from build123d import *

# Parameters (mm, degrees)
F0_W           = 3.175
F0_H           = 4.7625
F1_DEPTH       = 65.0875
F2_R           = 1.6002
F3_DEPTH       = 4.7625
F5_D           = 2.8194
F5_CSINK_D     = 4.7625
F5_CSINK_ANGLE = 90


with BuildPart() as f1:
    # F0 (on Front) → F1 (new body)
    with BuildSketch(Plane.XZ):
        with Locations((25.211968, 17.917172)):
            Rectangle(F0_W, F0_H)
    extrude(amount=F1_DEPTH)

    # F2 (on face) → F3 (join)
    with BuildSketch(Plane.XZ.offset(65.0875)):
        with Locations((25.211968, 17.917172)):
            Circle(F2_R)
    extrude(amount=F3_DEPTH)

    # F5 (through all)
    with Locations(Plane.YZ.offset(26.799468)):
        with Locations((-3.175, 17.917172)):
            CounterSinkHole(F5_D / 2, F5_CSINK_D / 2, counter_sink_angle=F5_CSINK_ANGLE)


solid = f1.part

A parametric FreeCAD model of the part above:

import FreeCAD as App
import Part
import Sketcher

V = App.Vector
Q = App.Units.Quantity

doc = App.newDocument("Part")
body = doc.addObject("PartDesign::Body", "Body")

sketch1 = body.newObject("Sketcher::SketchObject", "Sketch")
sketch1.AttachmentSupport = (doc.getObject("XZ_Plane"), [""])
sketch1.MapMode = "FlatFace"
sketch1.addGeometry([
    Part.LineSegment(V(23.6, 20.3, 0), V(23.6, 15.5, 0)),
    Part.LineSegment(V(23.6, 15.5, 0), V(26.8, 15.5, 0)),
    Part.LineSegment(V(26.8, 15.5, 0), V(26.8, 20.3, 0)),
    Part.LineSegment(V(26.8, 20.3, 0), V(23.6, 20.3, 0)),
], False)
sketch1.addConstraint([
    Sketcher.Constraint("Coincident", 0, 2, 1, 1),
    Sketcher.Constraint("Coincident", 1, 2, 2, 1),
    Sketcher.Constraint("Coincident", 2, 2, 3, 1),
    Sketcher.Constraint("Coincident", 3, 2, 0, 1),
    Sketcher.Constraint("Vertical", 0),
    Sketcher.Constraint("Horizontal", 1),
    Sketcher.Constraint("Vertical", 2),
    Sketcher.Constraint("Horizontal", 3),
    Sketcher.Constraint("DistanceX", 1, 1, 1, 2, Q("0.125 in")),
    Sketcher.Constraint("DistanceY", 0, 2, 0, 1, Q("0.1875 in")),
    Sketcher.Constraint("DistanceX", -1, 1, 0, 2, 23.624468),
    Sketcher.Constraint("DistanceY", -1, 1, 0, 2, 15.535922),
])
pad1 = body.newObject("PartDesign::Pad", "Pad")
pad1.Profile = sketch1
pad1.Length = Q("2.5625 in")

sketch2 = body.newObject("Sketcher::SketchObject", "Sketch001")
sketch2.AttachmentSupport = (doc.getObject("XZ_Plane"), [""])
sketch2.MapMode = "FlatFace"
sketch2.AttachmentOffset = App.Placement(V(0, 0, 2.5625 * 25.4), App.Rotation())
sketch2.addGeometry(Part.Circle(V(25.2, 17.9, 0), V(0, 0, 1), 1.6), False)
sketch2.addConstraint([
    Sketcher.Constraint("Diameter", 0, Q("0.126 in")),
    Sketcher.Constraint("DistanceX", -1, 1, 0, 3, 25.211968),
    Sketcher.Constraint("DistanceY", -1, 1, 0, 3, 17.917172),
])
pad2 = body.newObject("PartDesign::Pad", "Pad001")
pad2.Profile = sketch2
pad2.Length = Q("0.1875 in")

sketch3 = body.newObject("Sketcher::SketchObject", "Sketch002")
sketch3.AttachmentSupport = (doc.getObject("YZ_Plane"), [""])
sketch3.MapMode = "FlatFace"
sketch3.AttachmentOffset = App.Placement(V(0, 0, 26.799468), App.Rotation())
sketch3.addGeometry(Part.Circle(V(-3.2, 17.9, 0), V(0, 0, 1), 1.4), False)
sketch3.addConstraint([
    Sketcher.Constraint("Diameter", 0, Q("0.111 in")),
    Sketcher.Constraint("DistanceX", 0, 3, -1, 1, Q("0.125 in")),
    Sketcher.Constraint("DistanceY", -1, 1, 0, 3, 17.917172),
])
doc.recompute()
hole = body.newObject("PartDesign::Hole", "Hole")
hole.Profile = sketch3
hole.ThreadType = "None"
hole.Diameter = Q("0.111 in")
hole.DepthType = "ThroughAll"
hole.HoleCutType = "Countersink"
hole.HoleCutDiameter = Q("0.1875 in")
hole.HoleCutCountersinkAngle = 90

doc.recompute()
